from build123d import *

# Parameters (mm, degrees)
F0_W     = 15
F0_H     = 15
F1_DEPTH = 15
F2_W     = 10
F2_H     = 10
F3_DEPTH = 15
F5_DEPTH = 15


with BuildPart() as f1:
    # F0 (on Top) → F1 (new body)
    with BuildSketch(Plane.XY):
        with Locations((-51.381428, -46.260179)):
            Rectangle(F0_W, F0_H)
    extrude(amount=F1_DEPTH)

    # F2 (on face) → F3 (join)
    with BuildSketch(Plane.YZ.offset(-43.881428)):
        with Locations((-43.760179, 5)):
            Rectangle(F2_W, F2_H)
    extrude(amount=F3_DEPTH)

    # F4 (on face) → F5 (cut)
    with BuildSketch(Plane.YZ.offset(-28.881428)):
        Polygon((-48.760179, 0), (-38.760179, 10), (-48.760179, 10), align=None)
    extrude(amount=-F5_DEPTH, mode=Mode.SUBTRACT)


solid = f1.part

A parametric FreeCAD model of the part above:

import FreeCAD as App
import Part
import Sketcher
from FreeCAD import Vector
Q = App.Units.Quantity


def add_polygon(sketch, points):
    """Adds a closed chain of lines whose ends are joined by coincident constraints."""
    first, n = sketch.GeometryCount, len(points)
    for a, b in zip(points, points[1:] + points[:1]):
        sketch.addGeometry(Part.LineSegment(App.Vector(*a, 0), App.Vector(*b, 0)), False)
    for i in range(n):
        sketch.addConstraint(Sketcher.Constraint("Coincident", first + i, 2, first + (i + 1) % n, 1))

doc = App.newDocument("Part")
body = doc.addObject("PartDesign::Body", "Body")

sketch1 = body.newObject("Sketcher::SketchObject", "Sketch")
sketch1.AttachmentSupport = (doc.getObject("XY_Plane"), [""])
sketch1.MapMode = "FlatFace"
add_polygon(sketch1, [(-59, -39), (-59, -54), (-44, -54), (-44, -39)])
sketch1.addConstraint([
    Sketcher.Constraint("Vertical", 0),
    Sketcher.Constraint("Horizontal", 1),
    Sketcher.Constraint("Vertical", 2),
    Sketcher.Constraint("Horizontal", 3),
    Sketcher.Constraint("Equal", 3, 0),
    Sketcher.Constraint("DistanceX", 1, 1, 1, 2, Q("15 mm")),
    Sketcher.Constraint("DistanceY", 0, 2, -1, 1, Q("53.760179 mm")),
    Sketcher.Constraint("DistanceX", 0, 2, -1, 1, Q("58.881428 mm")),
])
pad1 = body.newObject("PartDesign::Pad", "Pad")
pad1.Profile = sketch1
pad1.Length = 15

sketch2 = body.newObject("Sketcher::SketchObject", "Sketch001")
sketch2.AttachmentSupport = (doc.getObject("YZ_Plane"), [""])
sketch2.MapMode = "FlatFace"
sketch2.AttachmentOffset = App.Placement(Vector(0, 0, -43.881428), App.Rotation())
add_polygon(sketch2, [(-49, 10), (-49, 0), (-39, 0), (-39, 10)])
sketch2.addConstraint([
    Sketcher.Constraint("Vertical", 0),
    Sketcher.Constraint("Horizontal", 1),
    Sketcher.Constraint("Vertical", 2),
    Sketcher.Constraint("Horizontal", 3),
    Sketcher.Constraint("PointOnObject", 0, 2, -1),
    Sketcher.Constraint("Equal", 3, 0),
    Sketcher.Constraint("DistanceX", 1, 1, 1, 2, Q("10 mm")),
    Sketcher.Constraint("DistanceX", 0, 2, -1, 1, Q("48.760179 mm")),
])
pad2 = body.newObject("PartDesign::Pad", "Pad001")
pad2.Profile = sketch2
pad2.Length = 15

sketch3 = body.newObject("Sketcher::SketchObject", "Sketch002")
sketch3.AttachmentSupport = (doc.getObject("YZ_Plane"), [""])
sketch3.MapMode = "FlatFace"
sketch3.AttachmentOffset = App.Placement(Vector(0, 0, -28.881428), App.Rotation())
add_polygon(sketch3, [(-49, 0), (-39, 10), (-49, 10)])
sketch3.addConstraint([
    Sketcher.Constraint("Horizontal", 1),
    Sketcher.Constraint("Vertical", 2),
    Sketcher.Constraint("PointOnObject", 2, 2, -1),
    Sketcher.Constraint("Equal", 1, 2),
    Sketcher.Constraint("DistanceX", 1, 2, 1, 1, Q("10 mm")),
    Sketcher.Constraint("DistanceX", 0, 2, -1, 1, Q("38.760179 mm")),
])
pocket1 = body.newObject("PartDesign::Pocket", "Pocket")
pocket1.Profile = sketch3
pocket1.Length = 15

doc.recompute()
